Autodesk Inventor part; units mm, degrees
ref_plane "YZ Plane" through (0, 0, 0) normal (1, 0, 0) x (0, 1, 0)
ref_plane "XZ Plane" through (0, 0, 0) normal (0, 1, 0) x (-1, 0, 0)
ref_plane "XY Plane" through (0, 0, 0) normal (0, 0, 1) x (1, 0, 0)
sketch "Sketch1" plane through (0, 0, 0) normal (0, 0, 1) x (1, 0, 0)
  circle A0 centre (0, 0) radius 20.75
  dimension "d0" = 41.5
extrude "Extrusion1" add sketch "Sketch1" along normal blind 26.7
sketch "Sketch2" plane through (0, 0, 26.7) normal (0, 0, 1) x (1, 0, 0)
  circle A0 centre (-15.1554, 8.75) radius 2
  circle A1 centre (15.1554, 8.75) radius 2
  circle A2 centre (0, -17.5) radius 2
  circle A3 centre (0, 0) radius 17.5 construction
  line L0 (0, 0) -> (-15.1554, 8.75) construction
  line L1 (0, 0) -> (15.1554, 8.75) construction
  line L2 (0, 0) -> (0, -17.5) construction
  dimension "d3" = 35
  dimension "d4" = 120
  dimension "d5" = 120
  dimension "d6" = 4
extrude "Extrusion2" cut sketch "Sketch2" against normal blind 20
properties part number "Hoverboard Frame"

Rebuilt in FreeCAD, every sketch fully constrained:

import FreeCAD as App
import Part
import Sketcher

V = App.Vector
Q = App.Units.Quantity

doc = App.newDocument("Part")
params = doc.addObject("Spreadsheet::Sheet", "Params")
for row, (alias, value) in enumerate([
    ("sketch1_diameter", "41.5 mm"),
    ("pad1_length", "26.7 mm"),
    ("sketch2_diameter", "4 mm"),
    ("pocket1_length", "20 mm"),
], start=1):
    params.set(f"A{row}", alias)
    params.set(f"B{row}", "=" + value)
    params.setAlias(f"B{row}", alias)

body = doc.addObject("PartDesign::Body", "Body")

# Sketch on XY plane
sketch1 = doc.addObject("Sketcher::SketchObject", "Sketch")
body.addObject(sketch1)
sketch1.AttachmentSupport = (doc.XY_Plane, [""])
sketch1.MapMode = "FlatFace"
sketch1.addGeometry(Part.Circle(V(0, 0, 0), V(0, 0, 1), 20.75), False)
sketch1.addConstraint([
    Sketcher.Constraint("Coincident", 0, 3, -1, 1),
    Sketcher.Constraint("Diameter", 0, Q("41.5 mm")),
])
sketch1.setExpression("Constraints[1]", "Params.sketch1_diameter")
pad1 = doc.addObject("PartDesign::Pad", "Pad")
body.addObject(pad1)
pad1.Profile = sketch1
pad1.setExpression("Length", "Params.pad1_length")

# Sketch on XY plane
sketch2 = doc.addObject("Sketcher::SketchObject", "Sketch001")
body.addObject(sketch2)
sketch2.AttachmentSupport = (doc.XY_Plane, [""])
sketch2.MapMode = "FlatFace"
sketch2.AttachmentOffset = App.Placement(V(0, 0, 26.7), App.Rotation())
sketch2.addGeometry([
    Part.Circle(V(-15.1554, 8.75, 0), V(0, 0, 1), 2),
    Part.Circle(V(15.1554, 8.75, 0), V(0, 0, 1), 2),
    Part.Circle(V(0, -17.5, 0), V(0, 0, 1), 2),
], False)
sketch2.addConstraint([
    Sketcher.Constraint("Equal", 0, 1),
    Sketcher.Constraint("Equal", 1, 2),
    Sketcher.Constraint("Symmetric", 0, 3, 1, 3, -2),
    Sketcher.Constraint("PointOnObject", 2, 3, -2),
    Sketcher.Constraint("Diameter", 0, Q("4 mm")),
    Sketcher.Constraint("DistanceY", 2, 3, -1, 1, Q("17.5 mm")),
    Sketcher.Constraint("DistanceY", -1, 1, 0, 3, Q("8.75 mm")),
    Sketcher.Constraint("DistanceX", 0, 3, -1, 1, Q("15.1554 mm")),
])
sketch2.setExpression("Constraints[4]", "Params.sketch2_diameter")
pocket1 = doc.addObject("PartDesign::Pocket", "Pocket")
body.addObject(pocket1)
pocket1.Profile = sketch2
pocket1.setExpression("Length", "Params.pocket1_length")

doc.recompute()
